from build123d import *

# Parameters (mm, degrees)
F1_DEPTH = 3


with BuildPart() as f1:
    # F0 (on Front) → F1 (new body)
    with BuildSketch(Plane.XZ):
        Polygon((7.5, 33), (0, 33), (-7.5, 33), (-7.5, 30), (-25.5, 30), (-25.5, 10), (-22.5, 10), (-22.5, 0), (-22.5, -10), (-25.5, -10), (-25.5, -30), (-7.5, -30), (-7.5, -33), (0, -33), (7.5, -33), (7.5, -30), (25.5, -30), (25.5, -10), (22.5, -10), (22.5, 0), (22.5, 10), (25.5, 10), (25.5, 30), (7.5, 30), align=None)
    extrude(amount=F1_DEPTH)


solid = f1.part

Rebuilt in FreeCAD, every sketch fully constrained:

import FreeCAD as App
import Part
import Sketcher
Q = App.Units.Quantity


def add_polygon(sketch, points):
    """Adds a closed chain of lines whose ends are joined by coincident constraints."""
    first, n = sketch.GeometryCount, len(points)
    for a, b in zip(points, points[1:] + points[:1]):
        sketch.addGeometry(Part.LineSegment(App.Vector(*a, 0), App.Vector(*b, 0)), False)
    for i in range(n):
        sketch.addConstraint(Sketcher.Constraint("Coincident", first + i, 2, first + (i + 1) % n, 1))

doc = App.newDocument("Part")
body = doc.addObject("PartDesign::Body", "Body")

# Sketch on XZ plane
sketch1 = doc.addObject("Sketcher::SketchObject", "Sketch")
body.addObject(sketch1)
sketch1.AttachmentSupport = (doc.XZ_Plane, [""])
sketch1.MapMode = "FlatFace"
add_polygon(sketch1, [(7.5, 33), (-7.5, 33), (-7.5, 30), (-25.5, 30), (-25.5, 10), (-22.5, 10), (-22.5, -10), (-25.5, -10), (-25.5, -30), (-7.5, -30), (-7.5, -33), (7.5, -33), (7.5, -30), (25.5, -30), (25.5, -10), (22.5, -10), (22.5, 10), (25.5, 10), (25.5, 30), (7.5, 30)])  # lines 0-19
sketch1.addConstraint(Sketcher.Constraint("Horizontal", 0))
sketch1.addConstraint(Sketcher.Constraint("Vertical", 1))
sketch1.addConstraint(Sketcher.Constraint("Horizontal", 2))
sketch1.addConstraint(Sketcher.Constraint("Vertical", 3))
sketch1.addConstraint(Sketcher.Constraint("Horizontal", 4))
sketch1.addConstraint(Sketcher.Constraint("Vertical", 5))
sketch1.addConstraint(Sketcher.Constraint("Horizontal", 6))
sketch1.addConstraint(Sketcher.Constraint("Vertical", 7))
sketch1.addConstraint(Sketcher.Constraint("Horizontal", 8))
sketch1.addConstraint(Sketcher.Constraint("Vertical", 9))
sketch1.addConstraint(Sketcher.Constraint("Horizontal", 10))
sketch1.addConstraint(Sketcher.Constraint("Vertical", 11))
sketch1.addConstraint(Sketcher.Constraint("Horizontal", 12))
sketch1.addConstraint(Sketcher.Constraint("Vertical", 13))
sketch1.addConstraint(Sketcher.Constraint("Horizontal", 14))
sketch1.addConstraint(Sketcher.Constraint("Vertical", 15))
sketch1.addConstraint(Sketcher.Constraint("Horizontal", 16))
sketch1.addConstraint(Sketcher.Constraint("Vertical", 17))
sketch1.addConstraint(Sketcher.Constraint("Horizontal", 18))
sketch1.addConstraint(Sketcher.Constraint("Vertical", 19))
sketch1.addConstraint(Sketcher.Constraint("Symmetric", 0, 2, 10, 2, -1, 1))
sketch1.addConstraint(Sketcher.Constraint("Symmetric", 2, 2, 12, 2, -1, 1))
sketch1.addConstraint(Sketcher.Constraint("Symmetric", 4, 2, 14, 2, -1, 1))
sketch1.addConstraint(Sketcher.Constraint("Symmetric", 6, 2, 16, 2, -1, 1))
sketch1.addConstraint(Sketcher.Constraint("Symmetric", 8, 2, 18, 2, -1, 1))
sketch1.addConstraint(Sketcher.Constraint("Symmetric", 8, 2, 11, 2, -2))
sketch1.addConstraint(Sketcher.Constraint("Symmetric", 6, 2, 13, 2, -2))
sketch1.addConstraint(Sketcher.Constraint("Equal", 16, 1))
sketch1.addConstraint(Sketcher.Constraint("Equal", 3, 5))
sketch1.addConstraint(Sketcher.Constraint("DistanceX", 0, 2, 0, 1, Q("15 mm")))
sketch1.addConstraint(Sketcher.Constraint("DistanceX", 2, 2, 2, 1, Q("18 mm")))
sketch1.addConstraint(Sketcher.Constraint("DistanceX", 4, 1, 4, 2, Q("3 mm")))
sketch1.addConstraint(Sketcher.Constraint("DistanceY", 3, 2, 3, 1, Q("20 mm")))
pad1 = doc.addObject("PartDesign::Pad", "Pad")
body.addObject(pad1)
pad1.Profile = sketch1
pad1.Length = 3

doc.recompute()
